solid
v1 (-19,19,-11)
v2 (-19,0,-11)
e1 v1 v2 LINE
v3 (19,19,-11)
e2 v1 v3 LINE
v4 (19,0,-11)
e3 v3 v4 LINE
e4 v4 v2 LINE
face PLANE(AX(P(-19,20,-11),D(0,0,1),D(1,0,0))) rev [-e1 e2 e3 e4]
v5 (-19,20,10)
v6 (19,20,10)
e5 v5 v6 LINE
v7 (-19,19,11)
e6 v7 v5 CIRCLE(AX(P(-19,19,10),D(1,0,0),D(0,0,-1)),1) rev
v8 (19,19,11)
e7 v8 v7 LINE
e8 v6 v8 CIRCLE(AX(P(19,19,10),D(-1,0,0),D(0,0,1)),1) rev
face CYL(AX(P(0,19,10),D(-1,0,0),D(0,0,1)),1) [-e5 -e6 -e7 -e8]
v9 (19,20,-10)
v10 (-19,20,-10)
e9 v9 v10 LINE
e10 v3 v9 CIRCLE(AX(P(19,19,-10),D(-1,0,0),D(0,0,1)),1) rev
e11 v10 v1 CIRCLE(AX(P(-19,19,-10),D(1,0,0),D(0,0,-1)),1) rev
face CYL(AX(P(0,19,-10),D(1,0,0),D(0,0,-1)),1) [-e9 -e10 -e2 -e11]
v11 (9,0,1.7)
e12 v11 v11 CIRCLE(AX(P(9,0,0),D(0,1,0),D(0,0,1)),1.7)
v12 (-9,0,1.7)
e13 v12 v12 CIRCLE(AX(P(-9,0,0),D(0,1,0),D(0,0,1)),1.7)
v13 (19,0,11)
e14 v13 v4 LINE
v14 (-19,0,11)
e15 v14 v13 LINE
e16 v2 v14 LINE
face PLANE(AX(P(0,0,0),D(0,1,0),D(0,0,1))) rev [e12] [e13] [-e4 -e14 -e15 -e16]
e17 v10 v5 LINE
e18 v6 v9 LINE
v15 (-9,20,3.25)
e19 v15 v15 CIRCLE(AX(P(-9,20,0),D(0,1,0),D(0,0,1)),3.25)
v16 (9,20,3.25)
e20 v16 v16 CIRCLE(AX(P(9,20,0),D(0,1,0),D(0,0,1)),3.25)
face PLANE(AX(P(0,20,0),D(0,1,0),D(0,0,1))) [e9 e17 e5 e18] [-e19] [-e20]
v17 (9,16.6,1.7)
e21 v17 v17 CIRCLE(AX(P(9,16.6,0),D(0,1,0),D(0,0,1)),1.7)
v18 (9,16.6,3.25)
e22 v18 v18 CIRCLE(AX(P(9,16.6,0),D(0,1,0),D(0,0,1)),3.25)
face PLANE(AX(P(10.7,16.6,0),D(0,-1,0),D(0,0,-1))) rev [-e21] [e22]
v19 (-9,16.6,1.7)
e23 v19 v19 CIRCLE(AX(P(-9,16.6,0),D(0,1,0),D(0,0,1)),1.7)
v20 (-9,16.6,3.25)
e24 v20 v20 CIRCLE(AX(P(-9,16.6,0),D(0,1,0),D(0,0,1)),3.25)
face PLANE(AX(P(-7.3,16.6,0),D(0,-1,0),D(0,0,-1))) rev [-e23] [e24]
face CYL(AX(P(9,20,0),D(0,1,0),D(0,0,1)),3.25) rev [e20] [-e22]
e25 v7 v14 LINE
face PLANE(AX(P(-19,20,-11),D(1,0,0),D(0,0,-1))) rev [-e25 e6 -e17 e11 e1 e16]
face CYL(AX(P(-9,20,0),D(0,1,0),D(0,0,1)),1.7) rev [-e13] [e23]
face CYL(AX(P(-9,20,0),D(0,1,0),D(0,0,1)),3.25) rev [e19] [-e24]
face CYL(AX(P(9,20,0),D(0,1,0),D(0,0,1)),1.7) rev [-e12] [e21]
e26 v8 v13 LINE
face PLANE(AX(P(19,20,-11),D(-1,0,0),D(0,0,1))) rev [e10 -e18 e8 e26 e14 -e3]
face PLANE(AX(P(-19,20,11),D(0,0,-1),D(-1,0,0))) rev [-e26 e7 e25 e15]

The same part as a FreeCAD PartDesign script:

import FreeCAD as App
import Part
import Sketcher
Q = App.Units.Quantity


def edges_at(feature, points):
    """Names of the edges that pass closest to the given points."""
    edges = feature.Shape.Edges
    near = lambda p: min(range(len(edges)), key=lambda i: edges[i].distToShape(Part.Vertex(*p))[0])
    return sorted({f"Edge{near(p) + 1}" for p in points})

doc = App.newDocument("Part")
body = doc.addObject("PartDesign::Body", "Body")

# Sketch on XZ plane
sketch1 = body.newObject("Sketcher::SketchObject", "Sketch")
sketch1.AttachmentSupport = (doc.getObject("XZ_Plane"), [""])
sketch1.MapMode = "FlatFace"
sketch1.addGeometry(Part.LineSegment(App.Vector(-19, -11, 0), App.Vector(-19, 11, 0)), False)
sketch1.addGeometry(Part.LineSegment(App.Vector(-19, 11, 0), App.Vector(19, 11, 0)), False)
sketch1.addGeometry(Part.LineSegment(App.Vector(19, 11, 0), App.Vector(19, -11, 0)), False)
sketch1.addGeometry(Part.LineSegment(App.Vector(19, -11, 0), App.Vector(-19, -11, 0)), False)
sketch1.addConstraint(Sketcher.Constraint("Coincident", 0, 2, 1, 1))
sketch1.addConstraint(Sketcher.Constraint("Coincident", 1, 2, 2, 1))
sketch1.addConstraint(Sketcher.Constraint("Coincident", 2, 2, 3, 1))
sketch1.addConstraint(Sketcher.Constraint("Coincident", 3, 2, 0, 1))
sketch1.addConstraint(Sketcher.Constraint("Vertical", 0))
sketch1.addConstraint(Sketcher.Constraint("Horizontal", 1))
sketch1.addConstraint(Sketcher.Constraint("Vertical", 2))
sketch1.addConstraint(Sketcher.Constraint("Horizontal", 3))
sketch1.addConstraint(Sketcher.Constraint("Symmetric", 0, 2, 2, 2, -1, 1))
sketch1.addConstraint(Sketcher.Constraint("DistanceX", 1, 1, 1, 2, Q("38 mm")))
sketch1.addConstraint(Sketcher.Constraint("DistanceY", 0, 1, 0, 2, Q("22 mm")))
pad1 = body.newObject("PartDesign::Pad", "Pad")
pad1.Profile = sketch1
pad1.Length = 20
pad1.Reversed = True

# Sketch on XZ plane
sketch2 = body.newObject("Sketcher::SketchObject", "Sketch001")
sketch2.AttachmentSupport = (doc.getObject("XZ_Plane"), [""])
sketch2.MapMode = "FlatFace"
sketch2.AttachmentOffset = App.Placement(App.Vector(0, 0, -20), App.Rotation())
sketch2.addGeometry(Part.Circle(App.Vector(-9, 0, 0), App.Vector(0, 0, 1), 1.7), False)
sketch2.addGeometry(Part.Circle(App.Vector(9, 0, 0), App.Vector(0, 0, 1), 1.7), False)
sketch2.addConstraint(Sketcher.Constraint("Equal", 0, 1))
sketch2.addConstraint(Sketcher.Constraint("Symmetric", 0, 3, 1, 3, -1, 1))
sketch2.addConstraint(Sketcher.Constraint("PointOnObject", 0, 3, -1))
sketch2.addConstraint(Sketcher.Constraint("Diameter", 0, Q("3.4 mm")))
sketch2.addConstraint(Sketcher.Constraint("DistanceX", 0, 3, -1, 1, Q("9 mm")))
doc.recompute()
hole = body.newObject("PartDesign::Hole", "Hole")
hole.Profile = sketch2
hole.ThreadType = "None"
hole.Diameter = 3.4
hole.DepthType = "ThroughAll"
hole.HoleCutType = "Counterbore"
hole.HoleCutDiameter = 6.5
hole.HoleCutDepth = 3.4
hole.Reversed = True
doc.recompute()

fillet = body.newObject("PartDesign::Fillet", "Fillet")
fillet.Base = (hole, edges_at(hole, [(0, 20, -11), (0, 20, 11)]))
fillet.Radius = 1

doc.recompute()
